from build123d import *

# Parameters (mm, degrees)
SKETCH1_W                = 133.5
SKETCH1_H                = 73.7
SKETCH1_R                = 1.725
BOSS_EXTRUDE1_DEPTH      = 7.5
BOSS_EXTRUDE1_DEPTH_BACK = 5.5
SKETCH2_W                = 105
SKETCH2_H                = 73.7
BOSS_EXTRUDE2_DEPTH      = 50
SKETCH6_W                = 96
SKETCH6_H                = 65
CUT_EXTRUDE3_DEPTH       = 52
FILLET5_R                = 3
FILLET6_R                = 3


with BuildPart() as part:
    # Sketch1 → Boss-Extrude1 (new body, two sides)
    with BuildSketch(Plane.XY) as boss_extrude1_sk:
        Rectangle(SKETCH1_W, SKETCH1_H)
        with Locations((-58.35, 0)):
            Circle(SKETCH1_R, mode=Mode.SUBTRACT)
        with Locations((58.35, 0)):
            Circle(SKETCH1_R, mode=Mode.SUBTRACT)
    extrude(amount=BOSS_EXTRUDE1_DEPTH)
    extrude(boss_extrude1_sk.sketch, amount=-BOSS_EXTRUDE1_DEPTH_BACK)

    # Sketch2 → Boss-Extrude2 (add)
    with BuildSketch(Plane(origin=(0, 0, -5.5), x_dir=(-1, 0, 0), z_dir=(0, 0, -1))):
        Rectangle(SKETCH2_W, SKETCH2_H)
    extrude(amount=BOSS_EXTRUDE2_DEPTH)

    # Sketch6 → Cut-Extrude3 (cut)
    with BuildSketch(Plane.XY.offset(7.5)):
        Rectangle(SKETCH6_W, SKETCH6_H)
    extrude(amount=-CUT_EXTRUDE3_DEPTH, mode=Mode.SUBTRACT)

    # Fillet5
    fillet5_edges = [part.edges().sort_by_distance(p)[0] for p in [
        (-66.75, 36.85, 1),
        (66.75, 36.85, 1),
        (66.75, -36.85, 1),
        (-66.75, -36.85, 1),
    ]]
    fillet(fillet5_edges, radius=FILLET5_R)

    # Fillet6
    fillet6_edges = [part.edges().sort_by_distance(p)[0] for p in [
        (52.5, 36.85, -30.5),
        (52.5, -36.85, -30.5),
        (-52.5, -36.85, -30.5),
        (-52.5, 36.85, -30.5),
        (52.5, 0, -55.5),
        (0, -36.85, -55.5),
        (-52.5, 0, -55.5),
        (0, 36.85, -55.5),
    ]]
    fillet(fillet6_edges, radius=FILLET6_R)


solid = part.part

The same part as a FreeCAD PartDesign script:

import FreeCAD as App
import Part
import Sketcher

V = App.Vector


def edges_at(feature, points):
    """Names of the edges that pass closest to the given points."""
    edges = feature.Shape.Edges
    near = lambda p: min(range(len(edges)), key=lambda i: edges[i].distToShape(Part.Vertex(*p))[0])
    return sorted({f"Edge{near(p) + 1}" for p in points})

doc = App.newDocument("Part")
params = doc.addObject("Spreadsheet::Sheet", "Params")
for row, (alias, value) in enumerate([
    ("sketch1_diameter", "3.45 mm"),
    ("sketch1_width", "133.5 mm"),
    ("sketch1_height", "73.7 mm"),
    ("pad1_length", "7.5 mm"),
    ("pad1_length2", "5.5 mm"),
    ("sketch2_width", "105 mm"),
    ("sketch2_height", "73.7 mm"),
    ("pad2_length", "50 mm"),
    ("sketch3_width", "96 mm"),
    ("sketch3_height", "65 mm"),
    ("pocket1_length", "52 mm"),
    ("fillet_radius", "3 mm"),
    ("fillet2_radius", "3 mm"),
], start=1):
    params.set(f"A{row}", alias)
    params.set(f"B{row}", "=" + value)
    params.setAlias(f"B{row}", alias)

body = doc.addObject("PartDesign::Body", "Body")

# Sketch on XY plane
sketch1 = body.newObject("Sketcher::SketchObject", "Sketch")
sketch1.AttachmentSupport = (doc.getObject("XY_Plane"), [""])
sketch1.MapMode = "FlatFace"
sketch1.addGeometry(Part.LineSegment(V(-66.75, 36.85, 0), V(-66.75, -36.85, 0)), False)
sketch1.addGeometry(Part.LineSegment(V(-66.75, -36.85, 0), V(66.75, -36.85, 0)), False)
sketch1.addGeometry(Part.LineSegment(V(66.75, -36.85, 0), V(66.75, 36.85, 0)), False)
sketch1.addGeometry(Part.LineSegment(V(66.75, 36.85, 0), V(-66.75, 36.85, 0)), False)
sketch1.addGeometry(Part.Circle(V(-58.35, 0, 0), V(0, 0, 1), 1.725), False)
sketch1.addGeometry(Part.Circle(V(58.35, 0, 0), V(0, 0, 1), 1.725), False)
sketch1.addConstraint(Sketcher.Constraint("Coincident", 0, 2, 1, 1))
sketch1.addConstraint(Sketcher.Constraint("Coincident", 1, 2, 2, 1))
sketch1.addConstraint(Sketcher.Constraint("Coincident", 2, 2, 3, 1))
sketch1.addConstraint(Sketcher.Constraint("Coincident", 3, 2, 0, 1))
sketch1.addConstraint(Sketcher.Constraint("Vertical", 0))
sketch1.addConstraint(Sketcher.Constraint("Horizontal", 1))
sketch1.addConstraint(Sketcher.Constraint("Vertical", 2))
sketch1.addConstraint(Sketcher.Constraint("Horizontal", 3))
sketch1.addConstraint(Sketcher.Constraint("Equal", 4, 5))
sketch1.addConstraint(Sketcher.Constraint("Symmetric", 4, 3, 5, 3, -1, 1))
sketch1.addConstraint(Sketcher.Constraint("Symmetric", 0, 2, 2, 2, -1, 1))
sketch1.addConstraint(Sketcher.Constraint("PointOnObject", 4, 3, -1))
sketch1.addConstraint(Sketcher.Constraint("Diameter", 4, 3.45))
sketch1.addConstraint(Sketcher.Constraint("DistanceX", 1, 1, 1, 2, 133.5))
sketch1.addConstraint(Sketcher.Constraint("DistanceY", 0, 2, 0, 1, 73.7))
sketch1.addConstraint(Sketcher.Constraint("DistanceX", 4, 3, 5, 3, 116.7))
sketch1.setExpression("Constraints[12]", "Params.sketch1_diameter")
sketch1.setExpression("Constraints[13]", "Params.sketch1_width")
sketch1.setExpression("Constraints[14]", "Params.sketch1_height")
pad1 = body.newObject("PartDesign::Pad", "Pad")
pad1.Profile = sketch1
pad1.Type = "TwoLengths"
pad1.setExpression("Length", "Params.pad1_length")
pad1.setExpression("Length2", "Params.pad1_length2")

# Sketch on XY plane
sketch2 = body.newObject("Sketcher::SketchObject", "Sketch001")
sketch2.AttachmentSupport = (doc.getObject("XY_Plane"), [""])
sketch2.MapMode = "FlatFace"
sketch2.AttachmentOffset = App.Placement(V(0, 0, -5.5), App.Rotation())
sketch2.addGeometry(Part.LineSegment(V(52.5, 36.85, 0), V(52.5, -36.85, 0)), False)
sketch2.addGeometry(Part.LineSegment(V(52.5, -36.85, 0), V(-52.5, -36.85, 0)), False)
sketch2.addGeometry(Part.LineSegment(V(-52.5, -36.85, 0), V(-52.5, 36.85, 0)), False)
sketch2.addGeometry(Part.LineSegment(V(-52.5, 36.85, 0), V(52.5, 36.85, 0)), False)
sketch2.addConstraint(Sketcher.Constraint("Coincident", 0, 2, 1, 1))
sketch2.addConstraint(Sketcher.Constraint("Coincident", 1, 2, 2, 1))
sketch2.addConstraint(Sketcher.Constraint("Coincident", 2, 2, 3, 1))
sketch2.addConstraint(Sketcher.Constraint("Coincident", 3, 2, 0, 1))
sketch2.addConstraint(Sketcher.Constraint("Vertical", 0))
sketch2.addConstraint(Sketcher.Constraint("Horizontal", 1))
sketch2.addConstraint(Sketcher.Constraint("Vertical", 2))
sketch2.addConstraint(Sketcher.Constraint("Horizontal", 3))
sketch2.addConstraint(Sketcher.Constraint("Symmetric", 0, 2, 2, 2, -1, 1))
sketch2.addConstraint(Sketcher.Constraint("DistanceX", 1, 2, 1, 1, 105.0))
sketch2.addConstraint(Sketcher.Constraint("DistanceY", 0, 2, 0, 1, 73.7))
sketch2.setExpression("Constraints[9]", "Params.sketch2_width")
sketch2.setExpression("Constraints[10]", "Params.sketch2_height")
pad2 = body.newObject("PartDesign::Pad", "Pad001")
pad2.Profile = sketch2
pad2.setExpression("Length", "Params.pad2_length")
pad2.Reversed = True

# Sketch on XY plane
sketch3 = body.newObject("Sketcher::SketchObject", "Sketch002")
sketch3.AttachmentSupport = (doc.getObject("XY_Plane"), [""])
sketch3.MapMode = "FlatFace"
sketch3.AttachmentOffset = App.Placement(V(0, 0, 7.5), App.Rotation())
sketch3.addGeometry(Part.LineSegment(V(-48, 32.5, 0), V(-48, -32.5, 0)), False)
sketch3.addGeometry(Part.LineSegment(V(-48, -32.5, 0), V(48, -32.5, 0)), False)
sketch3.addGeometry(Part.LineSegment(V(48, -32.5, 0), V(48, 32.5, 0)), False)
sketch3.addGeometry(Part.LineSegment(V(48, 32.5, 0), V(-48, 32.5, 0)), False)
sketch3.addConstraint(Sketcher.Constraint("Coincident", 0, 2, 1, 1))
sketch3.addConstraint(Sketcher.Constraint("Coincident", 1, 2, 2, 1))
sketch3.addConstraint(Sketcher.Constraint("Coincident", 2, 2, 3, 1))
sketch3.addConstraint(Sketcher.Constraint("Coincident", 3, 2, 0, 1))
sketch3.addConstraint(Sketcher.Constraint("Vertical", 0))
sketch3.addConstraint(Sketcher.Constraint("Horizontal", 1))
sketch3.addConstraint(Sketcher.Constraint("Vertical", 2))
sketch3.addConstraint(Sketcher.Constraint("Horizontal", 3))
sketch3.addConstraint(Sketcher.Constraint("Symmetric", 0, 2, 2, 2, -1, 1))
sketch3.addConstraint(Sketcher.Constraint("DistanceX", 1, 1, 1, 2, 96.0))
sketch3.addConstraint(Sketcher.Constraint("DistanceY", 0, 2, 0, 1, 65.0))
sketch3.setExpression("Constraints[9]", "Params.sketch3_width")
sketch3.setExpression("Constraints[10]", "Params.sketch3_height")
pocket1 = body.newObject("PartDesign::Pocket", "Pocket")
pocket1.Profile = sketch3
pocket1.setExpression("Length", "Params.pocket1_length")
doc.recompute()

fillet = body.newObject("PartDesign::Fillet", "Fillet")
fillet.Base = (pocket1, edges_at(pocket1, [
    (-66.75, 36.85, 1),
    (66.75, 36.85, 1),
    (66.75, -36.85, 1),
    (-66.75, -36.85, 1),
]))
fillet.setExpression("Radius", "Params.fillet_radius")
doc.recompute()

fillet2 = body.newObject("PartDesign::Fillet", "Fillet001")
fillet2.Base = (fillet, edges_at(fillet, [
    (52.5, 36.85, -30.5),
    (52.5, -36.85, -30.5),
    (-52.5, -36.85, -30.5),
    (-52.5, 36.85, -30.5),
    (52.5, 0, -55.5),
    (0, -36.85, -55.5),
    (-52.5, 0, -55.5),
    (0, 36.85, -55.5),
]))
fillet2.setExpression("Radius", "Params.fillet2_radius")

doc.recompute()
